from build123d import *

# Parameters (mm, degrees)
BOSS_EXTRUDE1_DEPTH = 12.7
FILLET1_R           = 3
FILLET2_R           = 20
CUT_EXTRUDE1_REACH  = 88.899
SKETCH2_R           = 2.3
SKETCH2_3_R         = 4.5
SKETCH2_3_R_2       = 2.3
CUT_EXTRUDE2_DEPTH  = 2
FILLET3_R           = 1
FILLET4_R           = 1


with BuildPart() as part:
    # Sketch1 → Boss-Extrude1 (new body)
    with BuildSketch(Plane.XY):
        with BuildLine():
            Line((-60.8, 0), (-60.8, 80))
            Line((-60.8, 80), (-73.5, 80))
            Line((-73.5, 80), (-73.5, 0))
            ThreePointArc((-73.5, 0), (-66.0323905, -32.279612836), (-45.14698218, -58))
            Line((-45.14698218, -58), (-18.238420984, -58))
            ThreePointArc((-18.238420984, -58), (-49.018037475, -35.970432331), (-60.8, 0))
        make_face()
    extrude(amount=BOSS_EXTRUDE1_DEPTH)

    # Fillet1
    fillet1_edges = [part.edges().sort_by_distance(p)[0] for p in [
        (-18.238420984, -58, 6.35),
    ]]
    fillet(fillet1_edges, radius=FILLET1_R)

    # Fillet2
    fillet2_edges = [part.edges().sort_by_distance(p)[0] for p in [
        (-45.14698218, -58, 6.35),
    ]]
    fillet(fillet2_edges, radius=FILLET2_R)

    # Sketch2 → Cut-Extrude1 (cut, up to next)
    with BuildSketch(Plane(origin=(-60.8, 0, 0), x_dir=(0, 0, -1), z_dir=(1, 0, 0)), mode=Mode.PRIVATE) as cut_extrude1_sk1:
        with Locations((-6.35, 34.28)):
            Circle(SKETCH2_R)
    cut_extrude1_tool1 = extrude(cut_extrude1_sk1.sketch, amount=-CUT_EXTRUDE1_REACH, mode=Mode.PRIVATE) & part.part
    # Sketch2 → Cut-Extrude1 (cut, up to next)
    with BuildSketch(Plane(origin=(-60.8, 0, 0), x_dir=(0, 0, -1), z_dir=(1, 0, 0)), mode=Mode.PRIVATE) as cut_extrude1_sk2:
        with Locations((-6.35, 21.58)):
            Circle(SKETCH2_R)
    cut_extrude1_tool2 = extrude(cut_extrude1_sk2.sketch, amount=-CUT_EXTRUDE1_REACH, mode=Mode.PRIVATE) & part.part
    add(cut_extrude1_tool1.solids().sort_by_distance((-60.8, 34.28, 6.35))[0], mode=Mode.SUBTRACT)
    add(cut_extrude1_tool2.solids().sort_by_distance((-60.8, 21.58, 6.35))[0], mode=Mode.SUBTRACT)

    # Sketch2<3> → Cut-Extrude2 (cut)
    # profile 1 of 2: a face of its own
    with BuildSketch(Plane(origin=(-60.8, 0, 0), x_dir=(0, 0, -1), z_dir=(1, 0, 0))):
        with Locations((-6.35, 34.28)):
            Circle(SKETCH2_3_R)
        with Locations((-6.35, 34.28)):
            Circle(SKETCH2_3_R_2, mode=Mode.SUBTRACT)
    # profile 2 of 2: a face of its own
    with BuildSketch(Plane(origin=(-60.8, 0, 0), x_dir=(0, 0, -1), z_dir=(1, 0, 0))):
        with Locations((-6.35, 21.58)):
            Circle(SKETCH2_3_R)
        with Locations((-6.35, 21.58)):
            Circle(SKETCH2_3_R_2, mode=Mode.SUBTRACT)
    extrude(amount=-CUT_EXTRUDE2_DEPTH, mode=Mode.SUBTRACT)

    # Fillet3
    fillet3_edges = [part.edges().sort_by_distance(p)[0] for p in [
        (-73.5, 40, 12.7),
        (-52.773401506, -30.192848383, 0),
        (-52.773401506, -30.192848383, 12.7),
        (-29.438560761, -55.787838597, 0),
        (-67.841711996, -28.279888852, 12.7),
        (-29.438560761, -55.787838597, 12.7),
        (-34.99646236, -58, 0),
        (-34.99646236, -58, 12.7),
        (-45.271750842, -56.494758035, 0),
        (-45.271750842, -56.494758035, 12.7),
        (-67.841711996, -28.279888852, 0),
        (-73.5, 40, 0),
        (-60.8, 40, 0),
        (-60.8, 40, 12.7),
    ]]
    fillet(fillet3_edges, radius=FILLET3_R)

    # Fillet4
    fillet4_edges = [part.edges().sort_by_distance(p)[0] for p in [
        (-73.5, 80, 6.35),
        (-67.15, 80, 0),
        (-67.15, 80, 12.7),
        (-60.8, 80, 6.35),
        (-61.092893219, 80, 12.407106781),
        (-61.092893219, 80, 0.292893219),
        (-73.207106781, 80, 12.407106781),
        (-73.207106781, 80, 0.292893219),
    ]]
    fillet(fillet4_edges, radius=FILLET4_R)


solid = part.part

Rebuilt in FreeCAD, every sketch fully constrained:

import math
import FreeCAD as App
import Part
import Sketcher
from FreeCAD import Vector
Q = App.Units.Quantity


def edges_at(feature, points):
    """Names of the edges that pass closest to the given points."""
    edges = feature.Shape.Edges
    near = lambda p: min(range(len(edges)), key=lambda i: edges[i].distToShape(Part.Vertex(*p))[0])
    return sorted({f"Edge{near(p) + 1}" for p in points})

doc = App.newDocument("Part")
body = doc.addObject("PartDesign::Body", "Body")

# Sketch on XY plane
sketch1 = body.newObject("Sketcher::SketchObject", "Sketch")
sketch1.AttachmentSupport = (doc.getObject("XY_Plane"), [""])
sketch1.MapMode = "FlatFace"
sketch1.addGeometry(Part.LineSegment(Vector(-60.8, 0, 0), Vector(-60.8, 80, 0)), False)
sketch1.addGeometry(Part.LineSegment(Vector(-60.8, 80, 0), Vector(-73.5, 80, 0)), False)
sketch1.addGeometry(Part.LineSegment(Vector(-73.5, 80, 0), Vector(-73.5, 0, 0)), False)
sketch1.addGeometry(Part.ArcOfCircle(Part.Circle(Vector(0, 0, 0), Vector(0, 0, 1), 73.5), math.radians(180), math.radians(232.102944)), False)
sketch1.addGeometry(Part.LineSegment(Vector(-45.146982, -58, 0), Vector(-18.238421, -58, 0)), False)
sketch1.addGeometry(Part.ArcOfCircle(Part.Circle(Vector(0, 0, 0), Vector(0, 0, 1), 60.8), math.radians(180), math.radians(252.543957)), False)
sketch1.addConstraint(Sketcher.Constraint("Coincident", 0, 2, 1, 1))
sketch1.addConstraint(Sketcher.Constraint("Coincident", 1, 2, 2, 1))
sketch1.addConstraint(Sketcher.Constraint("Tangent", 2, 2, 3, 1))
sketch1.addConstraint(Sketcher.Constraint("Coincident", 3, 2, 4, 1))
sketch1.addConstraint(Sketcher.Constraint("Coincident", 4, 2, 5, 2))
sketch1.addConstraint(Sketcher.Constraint("Tangent", 5, 1, 0, 1))
sketch1.addConstraint(Sketcher.Constraint("Vertical", 0))
sketch1.addConstraint(Sketcher.Constraint("Horizontal", 1))
sketch1.addConstraint(Sketcher.Constraint("Vertical", 2))
sketch1.addConstraint(Sketcher.Constraint("Horizontal", 4))
sketch1.addConstraint(Sketcher.Constraint("Coincident", 3, 3, -1, 1))
sketch1.addConstraint(Sketcher.Constraint("Coincident", 5, 3, -1, 1))
sketch1.addConstraint(Sketcher.Constraint("Radius", 3, Q("73.5 mm")))
sketch1.addConstraint(Sketcher.Constraint("Radius", 5, Q("60.8 mm")))
sketch1.addConstraint(Sketcher.Constraint("DistanceY", 0, 1, 0, 2, Q("80 mm")))
sketch1.addConstraint(Sketcher.Constraint("DistanceY", 3, 2, -1, 1, Q("58 mm")))
pad1 = body.newObject("PartDesign::Pad", "Pad")
pad1.Profile = sketch1
pad1.Length = 12.7
doc.recompute()

fillet = body.newObject("PartDesign::Fillet", "Fillet")
fillet.Base = (pad1, edges_at(pad1, [(-18.238, -58, 6.35)]))
fillet.Radius = 3
doc.recompute()

fillet2 = body.newObject("PartDesign::Fillet", "Fillet001")
fillet2.Base = (fillet, edges_at(fillet, [(-45.147, -58, 6.35)]))
fillet2.Radius = 20

# Sketch on YZ plane
sketch2 = body.newObject("Sketcher::SketchObject", "Sketch001")
sketch2.AttachmentSupport = (doc.getObject("YZ_Plane"), [""])
sketch2.MapMode = "FlatFace"
sketch2.AttachmentOffset = App.Placement(Vector(0, 0, -60.8), App.Rotation())
sketch2.addGeometry(Part.Circle(Vector(34.28, 6.35, 0), Vector(0, 0, 1), 2.3), False)
sketch2.addConstraint(Sketcher.Constraint("Diameter", 0, Q("4.6 mm")))
sketch2.addConstraint(Sketcher.Constraint("DistanceX", -1, 1, 0, 3, Q("34.28 mm")))
sketch2.addConstraint(Sketcher.Constraint("DistanceY", -1, 1, 0, 3, Q("6.35 mm")))
pocket1 = body.newObject("PartDesign::Pocket", "Pocket")
pocket1.Profile = sketch2
pocket1.Type = "UpToFirst"

# Sketch on YZ plane
sketch3 = body.newObject("Sketcher::SketchObject", "Sketch002")
sketch3.AttachmentSupport = (doc.getObject("YZ_Plane"), [""])
sketch3.MapMode = "FlatFace"
sketch3.AttachmentOffset = App.Placement(Vector(0, 0, -60.8), App.Rotation())
sketch3.addGeometry(Part.Circle(Vector(21.58, 6.35, 0), Vector(0, 0, 1), 2.3), False)
sketch3.addConstraint(Sketcher.Constraint("Diameter", 0, Q("4.6 mm")))
sketch3.addConstraint(Sketcher.Constraint("DistanceX", -1, 1, 0, 3, Q("21.58 mm")))
sketch3.addConstraint(Sketcher.Constraint("DistanceY", -1, 1, 0, 3, Q("6.35 mm")))
pocket2 = body.newObject("PartDesign::Pocket", "Pocket001")
pocket2.Profile = sketch3
pocket2.Type = "UpToFirst"

# Sketch on YZ plane
sketch4 = body.newObject("Sketcher::SketchObject", "Sketch003")
sketch4.AttachmentSupport = (doc.getObject("YZ_Plane"), [""])
sketch4.MapMode = "FlatFace"
sketch4.AttachmentOffset = App.Placement(Vector(0, 0, -60.8), App.Rotation())
sketch4.addGeometry(Part.Circle(Vector(34.28, 6.35, 0), Vector(0, 0, 1), 4.5), False)
sketch4.addGeometry(Part.Circle(Vector(34.28, 6.35, 0), Vector(0, 0, 1), 2.3), False)
sketch4.addGeometry(Part.Circle(Vector(21.58, 6.35, 0), Vector(0, 0, 1), 4.5), False)
sketch4.addGeometry(Part.Circle(Vector(21.58, 6.35, 0), Vector(0, 0, 1), 2.3), False)
sketch4.addConstraint(Sketcher.Constraint("Coincident", 1, 3, 0, 3))
sketch4.addConstraint(Sketcher.Constraint("Coincident", 3, 3, 2, 3))
sketch4.addConstraint(Sketcher.Constraint("Equal", 0, 2))
sketch4.addConstraint(Sketcher.Constraint("Equal", 1, 3))
sketch4.addConstraint(Sketcher.Constraint("Horizontal", 1, 3, 2, 3))
sketch4.addConstraint(Sketcher.Constraint("Diameter", 0, Q("9 mm")))
sketch4.addConstraint(Sketcher.Constraint("Diameter", 1, Q("4.6 mm")))
sketch4.addConstraint(Sketcher.Constraint("DistanceX", 2, 3, 0, 3, Q("12.7 mm")))
sketch4.addConstraint(Sketcher.Constraint("DistanceX", -1, 1, 0, 3, Q("34.28 mm")))
sketch4.addConstraint(Sketcher.Constraint("DistanceY", -1, 1, 0, 3, Q("6.35 mm")))
pocket3 = body.newObject("PartDesign::Pocket", "Pocket002")
pocket3.Profile = sketch4
pocket3.Length = 2
doc.recompute()

fillet3 = body.newObject("PartDesign::Fillet", "Fillet002")
fillet3.Base = (pocket3, edges_at(pocket3, [
    (-73.5, 40, 12.7),
    (-52.773, -30.193, 0),
    (-52.773, -30.193, 12.7),
    (-29.439, -55.788, 0),
    (-67.842, -28.28, 12.7),
    (-29.439, -55.788, 12.7),
    (-34.996, -58, 0),
    (-34.996, -58, 12.7),
    (-45.272, -56.495, 0),
    (-45.272, -56.495, 12.7),
    (-67.842, -28.28, 0),
    (-73.5, 40, 0),
    (-60.8, 40, 0),
    (-60.8, 40, 12.7),
]))
fillet3.Radius = 1
doc.recompute()

fillet4 = body.newObject("PartDesign::Fillet", "Fillet003")
fillet4.Base = (fillet3, edges_at(fillet3, [
    (-73.5, 80, 6.35),
    (-67.15, 80, 0),
    (-67.15, 80, 12.7),
    (-60.8, 80, 6.35),
    (-61.093, 80, 12.407),
    (-61.093, 80, 0.293),
    (-73.207, 80, 12.407),
    (-73.207, 80, 0.293),
]))
fillet4.Radius = 1

doc.recompute()
